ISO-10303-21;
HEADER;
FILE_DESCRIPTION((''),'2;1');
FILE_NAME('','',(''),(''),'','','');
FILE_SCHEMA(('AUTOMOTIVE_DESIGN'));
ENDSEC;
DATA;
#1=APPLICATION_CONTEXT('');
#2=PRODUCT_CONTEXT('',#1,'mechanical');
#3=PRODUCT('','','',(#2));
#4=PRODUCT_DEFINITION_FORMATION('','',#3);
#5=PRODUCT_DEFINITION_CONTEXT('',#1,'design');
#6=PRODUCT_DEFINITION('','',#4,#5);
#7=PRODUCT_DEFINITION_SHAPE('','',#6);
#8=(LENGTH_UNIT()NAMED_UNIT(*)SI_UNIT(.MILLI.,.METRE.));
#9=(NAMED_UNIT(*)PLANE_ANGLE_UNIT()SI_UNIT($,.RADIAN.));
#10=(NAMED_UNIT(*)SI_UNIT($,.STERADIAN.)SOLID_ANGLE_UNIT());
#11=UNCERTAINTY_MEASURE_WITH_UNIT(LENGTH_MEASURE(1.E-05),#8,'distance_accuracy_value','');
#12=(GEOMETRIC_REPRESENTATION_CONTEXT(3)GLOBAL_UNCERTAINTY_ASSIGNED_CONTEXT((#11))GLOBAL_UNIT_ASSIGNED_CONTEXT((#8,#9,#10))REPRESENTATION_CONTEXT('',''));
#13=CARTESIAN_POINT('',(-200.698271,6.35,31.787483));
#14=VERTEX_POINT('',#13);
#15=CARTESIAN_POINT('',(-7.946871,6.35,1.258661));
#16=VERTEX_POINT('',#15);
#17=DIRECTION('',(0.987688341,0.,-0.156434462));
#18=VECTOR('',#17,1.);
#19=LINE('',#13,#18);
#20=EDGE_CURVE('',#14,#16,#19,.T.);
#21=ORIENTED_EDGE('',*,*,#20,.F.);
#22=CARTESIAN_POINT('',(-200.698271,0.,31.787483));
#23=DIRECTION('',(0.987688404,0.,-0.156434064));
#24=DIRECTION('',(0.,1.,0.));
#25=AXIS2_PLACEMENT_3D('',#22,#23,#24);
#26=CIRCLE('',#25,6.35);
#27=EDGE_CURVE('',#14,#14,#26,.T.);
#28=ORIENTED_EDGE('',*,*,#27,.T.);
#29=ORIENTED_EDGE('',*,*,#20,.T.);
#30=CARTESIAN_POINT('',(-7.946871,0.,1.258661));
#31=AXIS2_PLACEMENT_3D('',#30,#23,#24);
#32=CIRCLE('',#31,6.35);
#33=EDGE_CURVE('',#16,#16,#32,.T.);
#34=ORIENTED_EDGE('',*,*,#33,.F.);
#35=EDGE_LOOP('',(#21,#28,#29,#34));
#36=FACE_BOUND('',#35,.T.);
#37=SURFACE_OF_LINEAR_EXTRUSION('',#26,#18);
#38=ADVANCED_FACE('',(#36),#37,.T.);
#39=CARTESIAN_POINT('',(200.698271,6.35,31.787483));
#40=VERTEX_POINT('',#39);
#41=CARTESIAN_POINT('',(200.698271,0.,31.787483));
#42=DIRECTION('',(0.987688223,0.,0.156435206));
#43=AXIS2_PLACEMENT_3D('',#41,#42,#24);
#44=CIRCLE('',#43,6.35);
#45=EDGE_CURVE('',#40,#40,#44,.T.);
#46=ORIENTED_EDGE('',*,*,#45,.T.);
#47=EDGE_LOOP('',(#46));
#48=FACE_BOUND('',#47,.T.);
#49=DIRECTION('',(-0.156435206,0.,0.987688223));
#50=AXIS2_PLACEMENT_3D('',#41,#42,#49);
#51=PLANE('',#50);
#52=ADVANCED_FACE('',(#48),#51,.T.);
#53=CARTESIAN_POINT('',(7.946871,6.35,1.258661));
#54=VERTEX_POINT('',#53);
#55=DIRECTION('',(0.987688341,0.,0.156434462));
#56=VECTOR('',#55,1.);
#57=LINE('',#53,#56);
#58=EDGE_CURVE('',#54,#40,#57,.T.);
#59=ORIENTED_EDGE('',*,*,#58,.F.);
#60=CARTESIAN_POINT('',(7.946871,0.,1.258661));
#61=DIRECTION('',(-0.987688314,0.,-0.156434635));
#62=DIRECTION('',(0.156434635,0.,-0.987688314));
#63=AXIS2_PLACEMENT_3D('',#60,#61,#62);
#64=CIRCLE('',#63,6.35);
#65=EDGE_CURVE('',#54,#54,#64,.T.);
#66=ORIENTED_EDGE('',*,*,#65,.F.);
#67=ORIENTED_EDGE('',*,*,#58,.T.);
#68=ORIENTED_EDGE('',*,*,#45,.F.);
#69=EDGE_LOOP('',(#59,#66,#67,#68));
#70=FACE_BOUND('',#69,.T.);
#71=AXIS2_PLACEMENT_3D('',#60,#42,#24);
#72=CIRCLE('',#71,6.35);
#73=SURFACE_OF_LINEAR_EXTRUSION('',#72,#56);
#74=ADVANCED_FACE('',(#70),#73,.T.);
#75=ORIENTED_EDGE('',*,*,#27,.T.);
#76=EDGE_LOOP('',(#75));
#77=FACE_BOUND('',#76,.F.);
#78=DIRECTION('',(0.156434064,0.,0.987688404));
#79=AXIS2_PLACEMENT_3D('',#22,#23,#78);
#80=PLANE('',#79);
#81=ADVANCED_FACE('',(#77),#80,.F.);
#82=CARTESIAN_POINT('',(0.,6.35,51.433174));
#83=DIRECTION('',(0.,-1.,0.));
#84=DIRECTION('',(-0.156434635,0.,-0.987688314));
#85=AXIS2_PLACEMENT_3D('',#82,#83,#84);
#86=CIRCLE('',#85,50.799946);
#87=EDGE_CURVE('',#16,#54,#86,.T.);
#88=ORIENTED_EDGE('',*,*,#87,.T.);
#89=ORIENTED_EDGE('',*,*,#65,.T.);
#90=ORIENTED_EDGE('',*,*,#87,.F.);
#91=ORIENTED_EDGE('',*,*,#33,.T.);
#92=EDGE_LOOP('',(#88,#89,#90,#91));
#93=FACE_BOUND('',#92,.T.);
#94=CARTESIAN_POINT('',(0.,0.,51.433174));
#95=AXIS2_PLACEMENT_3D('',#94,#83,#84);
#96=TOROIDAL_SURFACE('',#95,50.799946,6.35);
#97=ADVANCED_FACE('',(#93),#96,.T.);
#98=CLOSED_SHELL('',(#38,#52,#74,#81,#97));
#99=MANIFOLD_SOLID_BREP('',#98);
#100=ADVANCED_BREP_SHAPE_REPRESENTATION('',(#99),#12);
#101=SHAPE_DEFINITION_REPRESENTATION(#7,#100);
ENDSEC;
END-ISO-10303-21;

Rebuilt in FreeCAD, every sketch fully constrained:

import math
import FreeCAD as App
import Part
import Sketcher
Q = App.Units.Quantity

doc = App.newDocument("Part")
body = doc.addObject("PartDesign::Body", "Body")

sketch1 = doc.addObject("Sketcher::SketchObject", "Sketch")
body.addObject(sketch1)
sketch1.Placement = App.Placement(App.Vector(-200.698271, 0, 31.787483), App.Rotation(App.Vector(0, 1, 0), App.Vector(0.156434064, 0, 0.987688404), App.Vector(0.987688404, 0, -0.156434064), "ZXY"))
sketch1.addGeometry(Part.Circle(App.Vector(0, 0, 0), App.Vector(0, 0, 1), 6), False)
sketch1.addConstraint([
    Sketcher.Constraint("Coincident", 0, 3, -1, 1),
    Sketcher.Constraint("Diameter", 0, Q("0.5 in")),
])

sketch2 = doc.addObject("Sketcher::SketchObject", "Sketch001")
body.addObject(sketch2)
sketch2.AttachmentSupport = (doc.XZ_Plane, [""])
sketch2.MapMode = "FlatFace"
sketch2.addGeometry([
    Part.LineSegment(App.Vector(-201, 32, 0), App.Vector(-8, 1, 0)),
    Part.ArcOfCircle(Part.Circle(App.Vector(0, 51, 0), App.Vector(0, 0, 1), 51), math.radians(-99), math.radians(-81)),
    Part.LineSegment(App.Vector(8, 1, 0), App.Vector(201, 32, 0)),
], False)
sketch2.addConstraint([
    Sketcher.Constraint("Tangent", 0, 2, 1, 1),
    Sketcher.Constraint("Tangent", 1, 2, 2, 1),
    Sketcher.Constraint("Symmetric", 0, 2, 1, 2, -2),
    Sketcher.Constraint("Horizontal", 0, 1, 2, 2),
    Sketcher.Constraint("Angle", 0, Q("-9 deg")),
    Sketcher.Constraint("Radius", 1, 50.799946),
    Sketcher.Constraint("DistanceX", 0, 1, 0, 2, 192.7514),
    Sketcher.Constraint("DistanceY", -1, 1, 0, 2, 1.258661),
])
doc.recompute()

additivepipe = doc.addObject("PartDesign::AdditivePipe", "AdditivePipe")
body.addObject(additivepipe)
additivepipe.Profile = sketch1
additivepipe.Spine = (sketch2, ["Edge1", "Edge2", "Edge3"])

doc.recompute()
